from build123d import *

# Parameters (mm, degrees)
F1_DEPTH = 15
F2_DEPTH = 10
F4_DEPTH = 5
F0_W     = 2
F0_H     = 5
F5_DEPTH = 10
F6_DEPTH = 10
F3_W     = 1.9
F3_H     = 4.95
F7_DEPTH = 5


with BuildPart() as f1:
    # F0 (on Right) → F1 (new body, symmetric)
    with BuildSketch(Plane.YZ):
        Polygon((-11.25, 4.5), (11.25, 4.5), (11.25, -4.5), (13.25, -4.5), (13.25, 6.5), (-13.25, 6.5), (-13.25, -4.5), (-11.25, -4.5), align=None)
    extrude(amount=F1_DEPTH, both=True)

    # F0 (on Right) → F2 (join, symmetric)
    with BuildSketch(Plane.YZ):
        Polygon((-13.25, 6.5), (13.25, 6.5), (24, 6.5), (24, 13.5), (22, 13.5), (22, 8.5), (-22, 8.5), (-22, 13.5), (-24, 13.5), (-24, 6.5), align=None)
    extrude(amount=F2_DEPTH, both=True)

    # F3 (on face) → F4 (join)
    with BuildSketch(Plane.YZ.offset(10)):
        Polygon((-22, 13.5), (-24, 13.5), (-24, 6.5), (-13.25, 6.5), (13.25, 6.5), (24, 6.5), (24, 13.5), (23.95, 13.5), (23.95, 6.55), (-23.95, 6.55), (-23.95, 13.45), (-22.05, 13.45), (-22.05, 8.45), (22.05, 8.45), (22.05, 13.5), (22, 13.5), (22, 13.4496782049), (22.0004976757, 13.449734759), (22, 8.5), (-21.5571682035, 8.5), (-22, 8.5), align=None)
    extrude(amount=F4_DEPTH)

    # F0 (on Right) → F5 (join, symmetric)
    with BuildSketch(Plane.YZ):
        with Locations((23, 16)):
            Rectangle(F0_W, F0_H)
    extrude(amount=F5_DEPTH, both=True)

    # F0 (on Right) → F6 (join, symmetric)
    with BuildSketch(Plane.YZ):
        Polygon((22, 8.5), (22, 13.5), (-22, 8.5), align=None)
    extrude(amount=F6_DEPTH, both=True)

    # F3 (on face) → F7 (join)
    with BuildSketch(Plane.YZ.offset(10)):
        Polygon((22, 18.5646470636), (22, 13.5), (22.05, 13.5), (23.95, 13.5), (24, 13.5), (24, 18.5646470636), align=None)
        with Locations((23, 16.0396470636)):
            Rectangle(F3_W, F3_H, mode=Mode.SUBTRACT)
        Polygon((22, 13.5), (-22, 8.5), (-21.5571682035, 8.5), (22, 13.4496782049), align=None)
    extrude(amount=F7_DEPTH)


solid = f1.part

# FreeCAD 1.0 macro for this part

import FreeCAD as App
import Part
import Sketcher
from FreeCAD import Vector
Q = App.Units.Quantity

doc = App.newDocument("Part")
body = doc.addObject("PartDesign::Body", "Body")

# Sketch on YZ plane
sketch1 = body.newObject("Sketcher::SketchObject", "Sketch")
sketch1.AttachmentSupport = (doc.getObject("YZ_Plane"), [""])
sketch1.MapMode = "FlatFace"
sketch1.addGeometry([
    Part.LineSegment(Vector(-11.25, 4.5, 0), Vector(11.25, 4.5, 0)),  # 0
    Part.LineSegment(Vector(11.25, 4.5, 0), Vector(11.25, -4.5, 0)),  # 1
    Part.LineSegment(Vector(11.25, -4.5, 0), Vector(13.25, -4.5, 0)),  # 2
    Part.LineSegment(Vector(13.25, -4.5, 0), Vector(13.25, 6.5, 0)),  # 3
    Part.LineSegment(Vector(13.25, 6.5, 0), Vector(-13.25, 6.5, 0)),  # 4
    Part.LineSegment(Vector(-13.25, 6.5, 0), Vector(-13.25, -4.5, 0)),  # 5
    Part.LineSegment(Vector(-13.25, -4.5, 0), Vector(-11.25, -4.5, 0)),  # 6
    Part.LineSegment(Vector(-11.25, -4.5, 0), Vector(-11.25, 4.5, 0)),  # 7
], False)
sketch1.addConstraint([
    Sketcher.Constraint("Coincident", 0, 2, 1, 1),
    Sketcher.Constraint("Coincident", 1, 2, 2, 1),
    Sketcher.Constraint("Coincident", 2, 2, 3, 1),
    Sketcher.Constraint("Coincident", 3, 2, 4, 1),
    Sketcher.Constraint("Coincident", 4, 2, 5, 1),
    Sketcher.Constraint("Coincident", 5, 2, 6, 1),
    Sketcher.Constraint("Coincident", 6, 2, 7, 1),
    Sketcher.Constraint("Coincident", 7, 2, 0, 1),
    Sketcher.Constraint("Horizontal", 0),
    Sketcher.Constraint("Vertical", 1),
    Sketcher.Constraint("Horizontal", 2),
    Sketcher.Constraint("Vertical", 3),
    Sketcher.Constraint("Horizontal", 4),
    Sketcher.Constraint("Vertical", 5),
    Sketcher.Constraint("Horizontal", 6),
    Sketcher.Constraint("Vertical", 7),
    Sketcher.Constraint("Symmetric", 0, 2, 6, 2, -1, 1),
    Sketcher.Constraint("Symmetric", 2, 2, 5, 2, -2),
    Sketcher.Constraint("DistanceX", 2, 1, 2, 2, Q("2 mm")),
    Sketcher.Constraint("DistanceY", 1, 2, 1, 1, Q("9 mm")),
    Sketcher.Constraint("DistanceY", 3, 1, 3, 2, Q("11 mm")),
    Sketcher.Constraint("DistanceX", 0, 1, 0, 2, Q("22.5 mm")),
])
pad1 = body.newObject("PartDesign::Pad", "Pad")
pad1.Profile = sketch1
pad1.Length = 30
pad1.Midplane = True

# Sketch on YZ plane
sketch2 = body.newObject("Sketcher::SketchObject", "Sketch001")
sketch2.AttachmentSupport = (doc.getObject("YZ_Plane"), [""])
sketch2.MapMode = "FlatFace"
sketch2.addGeometry([
    Part.LineSegment(Vector(24, 6.5, 0), Vector(24, 13.5, 0)),  # 0
    Part.LineSegment(Vector(24, 13.5, 0), Vector(22, 13.5, 0)),  # 1
    Part.LineSegment(Vector(22, 13.5, 0), Vector(22, 8.5, 0)),  # 2
    Part.LineSegment(Vector(22, 8.5, 0), Vector(-22, 8.5, 0)),  # 3
    Part.LineSegment(Vector(-22, 8.5, 0), Vector(-22, 13.5, 0)),  # 4
    Part.LineSegment(Vector(-22, 13.5, 0), Vector(-24, 13.5, 0)),  # 5
    Part.LineSegment(Vector(-24, 13.5, 0), Vector(-24, 6.5, 0)),  # 6
    Part.LineSegment(Vector(-24, 6.5, 0), Vector(24, 6.5, 0)),  # 7
], False)
sketch2.addConstraint([
    Sketcher.Constraint("Coincident", 0, 2, 1, 1),
    Sketcher.Constraint("Coincident", 1, 2, 2, 1),
    Sketcher.Constraint("Coincident", 2, 2, 3, 1),
    Sketcher.Constraint("Coincident", 3, 2, 4, 1),
    Sketcher.Constraint("Coincident", 4, 2, 5, 1),
    Sketcher.Constraint("Coincident", 5, 2, 6, 1),
    Sketcher.Constraint("Coincident", 6, 2, 7, 1),
    Sketcher.Constraint("Coincident", 7, 2, 0, 1),
    Sketcher.Constraint("Vertical", 0),
    Sketcher.Constraint("Horizontal", 1),
    Sketcher.Constraint("Vertical", 2),
    Sketcher.Constraint("Horizontal", 3),
    Sketcher.Constraint("Vertical", 4),
    Sketcher.Constraint("Horizontal", 5),
    Sketcher.Constraint("Vertical", 6),
    Sketcher.Constraint("Horizontal", 7),
    Sketcher.Constraint("Symmetric", 1, 2, 4, 2, -2),
    Sketcher.Constraint("Equal", 1, 5),
    Sketcher.Constraint("DistanceX", 1, 2, 1, 1, Q("2 mm")),
    Sketcher.Constraint("DistanceX", 3, 2, 3, 1, Q("44 mm")),
    Sketcher.Constraint("DistanceY", 0, 1, 0, 2, Q("7 mm")),
    Sketcher.Constraint("DistanceY", 2, 2, 2, 1, Q("5 mm")),
    Sketcher.Constraint("DistanceY", -1, 1, 0, 2, Q("13.5 mm")),
])
pad2 = body.newObject("PartDesign::Pad", "Pad001")
pad2.Profile = sketch2
pad2.Length = 20
pad2.Midplane = True

# Sketch on YZ plane
sketch3 = body.newObject("Sketcher::SketchObject", "Sketch002")
sketch3.AttachmentSupport = (doc.getObject("YZ_Plane"), [""])
sketch3.MapMode = "FlatFace"
sketch3.AttachmentOffset = App.Placement(Vector(0, 0, 10), App.Rotation())
sketch3.addGeometry([
    Part.LineSegment(Vector(-22, 13.5, 0), Vector(-24, 13.5, 0)),  # 0
    Part.LineSegment(Vector(-24, 13.5, 0), Vector(-24, 6.5, 0)),  # 1
    Part.LineSegment(Vector(-24, 6.5, 0), Vector(24, 6.5, 0)),  # 2
    Part.LineSegment(Vector(24, 6.5, 0), Vector(24, 13.5, 0)),  # 3
    Part.LineSegment(Vector(24, 13.5, 0), Vector(23.95, 13.5, 0)),  # 4
    Part.LineSegment(Vector(23.95, 13.5, 0), Vector(23.95, 6.55, 0)),  # 5
    Part.LineSegment(Vector(23.95, 6.55, 0), Vector(-23.95, 6.55, 0)),  # 6
    Part.LineSegment(Vector(-23.95, 6.55, 0), Vector(-23.95, 13.45, 0)),  # 7
    Part.LineSegment(Vector(-23.95, 13.45, 0), Vector(-22.05, 13.45, 0)),  # 8
    Part.LineSegment(Vector(-22.05, 13.45, 0), Vector(-22.05, 8.45, 0)),  # 9
    Part.LineSegment(Vector(-22.05, 8.45, 0), Vector(22.05, 8.45, 0)),  # 10
    Part.LineSegment(Vector(22.05, 8.45, 0), Vector(22.05, 13.5, 0)),  # 11
    Part.LineSegment(Vector(22.05, 13.5, 0), Vector(22, 13.5, 0)),  # 12
    Part.LineSegment(Vector(22, 13.5, 0), Vector(22, 13.449678, 0)),  # 13
    Part.LineSegment(Vector(22, 13.449678, 0), Vector(22.000498, 13.449735, 0)),  # 14
    Part.LineSegment(Vector(22.000498, 13.449735, 0), Vector(22, 8.5, 0)),  # 15
    Part.LineSegment(Vector(22, 8.5, 0), Vector(-22, 8.5, 0)),  # 16
    Part.LineSegment(Vector(-22, 8.5, 0), Vector(-22, 13.5, 0)),  # 17
], False)
sketch3.addConstraint([
    Sketcher.Constraint("Coincident", 0, 2, 1, 1),
    Sketcher.Constraint("Coincident", 1, 2, 2, 1),
    Sketcher.Constraint("Coincident", 2, 2, 3, 1),
    Sketcher.Constraint("Coincident", 3, 2, 4, 1),
    Sketcher.Constraint("Coincident", 4, 2, 5, 1),
    Sketcher.Constraint("Coincident", 5, 2, 6, 1),
    Sketcher.Constraint("Coincident", 6, 2, 7, 1),
    Sketcher.Constraint("Coincident", 7, 2, 8, 1),
    Sketcher.Constraint("Coincident", 8, 2, 9, 1),
    Sketcher.Constraint("Coincident", 9, 2, 10, 1),
    Sketcher.Constraint("Coincident", 10, 2, 11, 1),
    Sketcher.Constraint("Coincident", 11, 2, 12, 1),
    Sketcher.Constraint("Coincident", 12, 2, 13, 1),
    Sketcher.Constraint("Coincident", 13, 2, 14, 1),
    Sketcher.Constraint("Coincident", 14, 2, 15, 1),
    Sketcher.Constraint("Coincident", 15, 2, 16, 1),
    Sketcher.Constraint("Coincident", 16, 2, 17, 1),
    Sketcher.Constraint("Coincident", 17, 2, 0, 1),
    Sketcher.Constraint("Horizontal", 0),
    Sketcher.Constraint("Vertical", 1),
    Sketcher.Constraint("Horizontal", 2),
    Sketcher.Constraint("Vertical", 3),
    Sketcher.Constraint("Horizontal", 4),
    Sketcher.Constraint("Vertical", 5),
    Sketcher.Constraint("Horizontal", 6),
    Sketcher.Constraint("Vertical", 7),
    Sketcher.Constraint("Horizontal", 8),
    Sketcher.Constraint("Vertical", 9),
    Sketcher.Constraint("Horizontal", 10),
    Sketcher.Constraint("Vertical", 11),
    Sketcher.Constraint("Horizontal", 12),
    Sketcher.Constraint("Vertical", 13),
    Sketcher.Constraint("Horizontal", 16),
    Sketcher.Constraint("Vertical", 17),
    Sketcher.Constraint("Symmetric", 0, 2, 3, 2, -2),
    Sketcher.Constraint("Symmetric", 12, 2, 17, 2, -2),
    Sketcher.Constraint("Vertical", 13, 2, 15, 2),
    Sketcher.Constraint("Equal", 4, 12),
    Sketcher.Constraint("Equal", 9, 17),
    Sketcher.Constraint("DistanceX", 0, 2, 0, 1, Q("2 mm")),
    Sketcher.Constraint("DistanceX", 2, 1, 2, 2, Q("48 mm")),
    Sketcher.Constraint("DistanceY", 1, 2, 1, 1, Q("7 mm")),
    Sketcher.Constraint("DistanceY", 9, 2, 9, 1, Q("5 mm")),
    Sketcher.Constraint("DistanceX", 6, 2, 6, 1, Q("47.9 mm")),
    Sketcher.Constraint("DistanceX", 8, 1, 8, 2, Q("1.9 mm")),
    Sketcher.Constraint("DistanceX", 10, 1, 10, 2, Q("44.1 mm")),
    Sketcher.Constraint("DistanceY", 7, 1, 7, 2, Q("6.9 mm")),
    Sketcher.Constraint("DistanceY", 5, 2, 5, 1, Q("6.95 mm")),
    Sketcher.Constraint("DistanceY", -1, 1, 0, 2, Q("13.5 mm")),
    Sketcher.Constraint("Distance", 14, Q("0.000501 mm")),
    Sketcher.Constraint("DistanceY", 13, 2, 13, 1, Q("0.050322 mm")),
    Sketcher.Constraint("Distance", 15, Q("4.949735 mm")),
])
pad3 = body.newObject("PartDesign::Pad", "Pad002")
pad3.Profile = sketch3
pad3.Length = 5

# Sketch on YZ plane
sketch4 = body.newObject("Sketcher::SketchObject", "Sketch003")
sketch4.AttachmentSupport = (doc.getObject("YZ_Plane"), [""])
sketch4.MapMode = "FlatFace"
sketch4.addGeometry([
    Part.LineSegment(Vector(22, 18.5, 0), Vector(22, 13.5, 0)),
    Part.LineSegment(Vector(22, 13.5, 0), Vector(24, 13.5, 0)),
    Part.LineSegment(Vector(24, 13.5, 0), Vector(24, 18.5, 0)),
    Part.LineSegment(Vector(24, 18.5, 0), Vector(22, 18.5, 0)),
], False)
sketch4.addConstraint([
    Sketcher.Constraint("Coincident", 0, 2, 1, 1),
    Sketcher.Constraint("Coincident", 1, 2, 2, 1),
    Sketcher.Constraint("Coincident", 2, 2, 3, 1),
    Sketcher.Constraint("Coincident", 3, 2, 0, 1),
    Sketcher.Constraint("Vertical", 0),
    Sketcher.Constraint("Horizontal", 1),
    Sketcher.Constraint("Vertical", 2),
    Sketcher.Constraint("Horizontal", 3),
    Sketcher.Constraint("DistanceX", 1, 1, 1, 2, Q("2 mm")),
    Sketcher.Constraint("DistanceY", 0, 2, 0, 1, Q("5 mm")),
    Sketcher.Constraint("DistanceX", -1, 1, 0, 2, Q("22 mm")),
    Sketcher.Constraint("DistanceY", -1, 1, 0, 2, Q("13.5 mm")),
])
pad4 = body.newObject("PartDesign::Pad", "Pad003")
pad4.Profile = sketch4
pad4.Length = 20
pad4.Midplane = True

# Sketch on YZ plane
sketch5 = body.newObject("Sketcher::SketchObject", "Sketch004")
sketch5.AttachmentSupport = (doc.getObject("YZ_Plane"), [""])
sketch5.MapMode = "FlatFace"
sketch5.addGeometry([
    Part.LineSegment(Vector(22, 8.5, 0), Vector(22, 13.5, 0)),
    Part.LineSegment(Vector(22, 13.5, 0), Vector(-22, 8.5, 0)),
    Part.LineSegment(Vector(-22, 8.5, 0), Vector(22, 8.5, 0)),
], False)
sketch5.addConstraint([
    Sketcher.Constraint("Coincident", 0, 2, 1, 1),
    Sketcher.Constraint("Coincident", 1, 2, 2, 1),
    Sketcher.Constraint("Coincident", 2, 2, 0, 1),
    Sketcher.Constraint("Vertical", 0),
    Sketcher.Constraint("Horizontal", 2),
    Sketcher.Constraint("DistanceX", 2, 1, 2, 2, Q("44 mm")),
    Sketcher.Constraint("DistanceY", 0, 1, 0, 2, Q("5 mm")),
    Sketcher.Constraint("DistanceX", -1, 1, 0, 2, Q("22 mm")),
    Sketcher.Constraint("DistanceY", -1, 1, 0, 2, Q("13.5 mm")),
])
pad5 = body.newObject("PartDesign::Pad", "Pad004")
pad5.Profile = sketch5
pad5.Length = 20
pad5.Midplane = True

# Sketch on YZ plane
sketch6 = body.newObject("Sketcher::SketchObject", "Sketch005")
sketch6.AttachmentSupport = (doc.getObject("YZ_Plane"), [""])
sketch6.MapMode = "FlatFace"
sketch6.AttachmentOffset = App.Placement(Vector(0, 0, 10), App.Rotation())
sketch6.addGeometry([
    Part.LineSegment(Vector(22, 18.564647, 0), Vector(22, 13.5, 0)),  # 0
    Part.LineSegment(Vector(22, 13.5, 0), Vector(24, 13.5, 0)),  # 1
    Part.LineSegment(Vector(24, 13.5, 0), Vector(24, 18.564647, 0)),  # 2
    Part.LineSegment(Vector(24, 18.564647, 0), Vector(22, 18.564647, 0)),  # 3
    Part.LineSegment(Vector(23.95, 13.564647, 0), Vector(22.05, 13.564647, 0)),  # 4
    Part.LineSegment(Vector(22.05, 13.564647, 0), Vector(22.05, 18.514647, 0)),  # 5
    Part.LineSegment(Vector(22.05, 18.514647, 0), Vector(23.95, 18.514647, 0)),  # 6
    Part.LineSegment(Vector(23.95, 18.514647, 0), Vector(23.95, 13.564647, 0)),  # 7
    Part.LineSegment(Vector(22, 13.5, 0), Vector(-22, 8.5, 0)),  # 8
    Part.LineSegment(Vector(-22, 8.5, 0), Vector(-21.557168, 8.5, 0)),  # 9
    Part.LineSegment(Vector(-21.557168, 8.5, 0), Vector(22, 13.449678, 0)),  # 10
    Part.LineSegment(Vector(22, 13.449678, 0), Vector(22, 13.5, 0)),  # 11
], False)
sketch6.addConstraint([
    Sketcher.Constraint("Coincident", 0, 2, 1, 1),
    Sketcher.Constraint("Coincident", 1, 2, 2, 1),
    Sketcher.Constraint("Coincident", 2, 2, 3, 1),
    Sketcher.Constraint("Coincident", 3, 2, 0, 1),
    Sketcher.Constraint("Coincident", 4, 2, 5, 1),
    Sketcher.Constraint("Coincident", 5, 2, 6, 1),
    Sketcher.Constraint("Coincident", 6, 2, 7, 1),
    Sketcher.Constraint("Coincident", 7, 2, 4, 1),
    Sketcher.Constraint("Coincident", 8, 2, 9, 1),
    Sketcher.Constraint("Coincident", 9, 2, 10, 1),
    Sketcher.Constraint("Coincident", 10, 2, 11, 1),
    Sketcher.Constraint("Coincident", 11, 2, 8, 1),
    Sketcher.Constraint("Vertical", 0),
    Sketcher.Constraint("Horizontal", 1),
    Sketcher.Constraint("Vertical", 2),
    Sketcher.Constraint("Horizontal", 3),
    Sketcher.Constraint("Horizontal", 4),
    Sketcher.Constraint("Vertical", 5),
    Sketcher.Constraint("Horizontal", 6),
    Sketcher.Constraint("Vertical", 7),
    Sketcher.Constraint("Horizontal", 9),
    Sketcher.Constraint("Vertical", 11),
    Sketcher.Constraint("Coincident", 11, 2, 0, 2),
    Sketcher.Constraint("Parallel", 8, 10),
    Sketcher.Constraint("DistanceX", 1, 1, 1, 2, Q("2 mm")),
    Sketcher.Constraint("DistanceX", 4, 2, 4, 1, Q("1.9 mm")),
    Sketcher.Constraint("DistanceX", -1, 1, 0, 2, Q("22 mm")),
    Sketcher.Constraint("DistanceX", 8, 2, -1, 1, Q("22 mm")),
    Sketcher.Constraint("DistanceY", 4, 2, 3, 2, Q("5 mm")),
    Sketcher.Constraint("DistanceY", 8, 2, 0, 2, Q("5 mm")),
    Sketcher.Constraint("DistanceY", 5, 1, 5, 2, Q("4.95 mm")),
    Sketcher.Constraint("DistanceY", -1, 1, 0, 2, Q("13.5 mm")),
    Sketcher.Constraint("DistanceX", -1, 1, 4, 2, Q("22.05 mm")),
    Sketcher.Constraint("DistanceX", 9, 1, 9, 2, Q("0.442832 mm")),
    Sketcher.Constraint("DistanceY", 0, 2, 0, 1, Q("5.064647 mm")),
])
pad6 = body.newObject("PartDesign::Pad", "Pad005")
pad6.Profile = sketch6
pad6.Length = 5

doc.recompute()
